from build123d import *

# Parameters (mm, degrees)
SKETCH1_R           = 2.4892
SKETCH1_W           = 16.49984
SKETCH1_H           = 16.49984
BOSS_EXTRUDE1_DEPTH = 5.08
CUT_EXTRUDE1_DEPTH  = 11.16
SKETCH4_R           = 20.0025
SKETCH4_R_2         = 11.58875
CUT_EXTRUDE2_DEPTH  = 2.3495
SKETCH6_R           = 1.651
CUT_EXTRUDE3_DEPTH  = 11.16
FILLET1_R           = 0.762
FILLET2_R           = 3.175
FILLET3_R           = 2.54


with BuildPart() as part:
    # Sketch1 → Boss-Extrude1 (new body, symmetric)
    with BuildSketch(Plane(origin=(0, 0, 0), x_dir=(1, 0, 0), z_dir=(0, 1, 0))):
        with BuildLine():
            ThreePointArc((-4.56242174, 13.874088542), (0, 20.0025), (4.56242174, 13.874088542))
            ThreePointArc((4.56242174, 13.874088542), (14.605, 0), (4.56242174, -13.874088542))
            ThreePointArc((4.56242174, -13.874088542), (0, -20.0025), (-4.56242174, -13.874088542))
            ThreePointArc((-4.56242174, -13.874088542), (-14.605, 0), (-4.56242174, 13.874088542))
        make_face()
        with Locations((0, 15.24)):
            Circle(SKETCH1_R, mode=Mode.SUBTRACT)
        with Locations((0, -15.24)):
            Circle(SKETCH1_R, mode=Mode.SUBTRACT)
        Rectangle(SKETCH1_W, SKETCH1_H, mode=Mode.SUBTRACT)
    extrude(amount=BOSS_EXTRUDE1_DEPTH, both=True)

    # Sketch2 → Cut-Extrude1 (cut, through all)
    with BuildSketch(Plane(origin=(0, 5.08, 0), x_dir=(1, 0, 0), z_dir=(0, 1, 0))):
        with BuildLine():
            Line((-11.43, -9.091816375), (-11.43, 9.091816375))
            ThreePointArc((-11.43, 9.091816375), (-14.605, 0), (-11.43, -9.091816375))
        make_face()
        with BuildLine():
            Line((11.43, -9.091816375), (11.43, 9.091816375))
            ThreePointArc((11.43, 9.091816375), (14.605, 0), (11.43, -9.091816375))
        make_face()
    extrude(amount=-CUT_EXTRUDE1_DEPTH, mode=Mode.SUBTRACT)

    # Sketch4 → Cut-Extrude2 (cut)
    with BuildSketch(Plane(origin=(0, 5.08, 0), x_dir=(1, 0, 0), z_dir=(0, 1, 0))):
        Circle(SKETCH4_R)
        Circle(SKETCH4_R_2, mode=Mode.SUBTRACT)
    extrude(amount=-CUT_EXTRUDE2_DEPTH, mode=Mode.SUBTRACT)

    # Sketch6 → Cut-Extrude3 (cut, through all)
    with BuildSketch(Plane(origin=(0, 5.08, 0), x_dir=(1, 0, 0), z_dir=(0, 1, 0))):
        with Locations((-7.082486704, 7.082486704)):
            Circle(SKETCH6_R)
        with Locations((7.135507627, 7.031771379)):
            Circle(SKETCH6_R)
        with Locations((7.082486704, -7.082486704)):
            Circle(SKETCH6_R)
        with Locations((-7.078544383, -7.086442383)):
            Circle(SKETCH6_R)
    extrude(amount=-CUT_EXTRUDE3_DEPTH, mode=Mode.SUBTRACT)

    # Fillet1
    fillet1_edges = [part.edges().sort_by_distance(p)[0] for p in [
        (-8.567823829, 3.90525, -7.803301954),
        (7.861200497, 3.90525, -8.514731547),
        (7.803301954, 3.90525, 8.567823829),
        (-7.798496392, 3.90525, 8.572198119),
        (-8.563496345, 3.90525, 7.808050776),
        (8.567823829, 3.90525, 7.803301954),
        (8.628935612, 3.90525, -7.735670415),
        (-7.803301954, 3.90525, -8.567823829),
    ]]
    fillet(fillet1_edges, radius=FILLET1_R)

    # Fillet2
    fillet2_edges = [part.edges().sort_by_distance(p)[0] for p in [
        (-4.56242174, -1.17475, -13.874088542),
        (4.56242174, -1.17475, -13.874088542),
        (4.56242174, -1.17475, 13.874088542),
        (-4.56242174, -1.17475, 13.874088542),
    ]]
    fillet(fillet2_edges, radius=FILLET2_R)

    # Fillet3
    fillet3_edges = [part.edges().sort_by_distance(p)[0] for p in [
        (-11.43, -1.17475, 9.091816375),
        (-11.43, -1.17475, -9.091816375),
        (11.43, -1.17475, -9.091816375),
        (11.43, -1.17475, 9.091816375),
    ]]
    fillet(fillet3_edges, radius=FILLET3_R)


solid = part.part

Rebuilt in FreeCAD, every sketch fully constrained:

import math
import FreeCAD as App
import Part
import Sketcher

V = App.Vector
Q = App.Units.Quantity


def edges_at(feature, points):
    """Names of the edges that pass closest to the given points."""
    edges = feature.Shape.Edges
    near = lambda p: min(range(len(edges)), key=lambda i: edges[i].distToShape(Part.Vertex(*p))[0])
    return sorted({f"Edge{near(p) + 1}" for p in points})

doc = App.newDocument("Part")
body = doc.addObject("PartDesign::Body", "Body")

# Sketch on XZ plane
sketch1 = body.newObject("Sketcher::SketchObject", "Sketch")
sketch1.AttachmentSupport = (doc.getObject("XZ_Plane"), [""])
sketch1.MapMode = "FlatFace"
sketch1.addGeometry([
    Part.ArcOfCircle(Part.Circle(V(0, -15.2, 0), V(0, 0, 1), 4.8), math.radians(163), math.radians(377)),  # 0
    Part.ArcOfCircle(Part.Circle(V(0, 0, 0), V(0, 0, 1), 14.6), math.radians(108), math.radians(252)),  # 1
    Part.ArcOfCircle(Part.Circle(V(0, 15.2, 0), V(0, 0, 1), 4.8), math.radians(-17), math.radians(197)),  # 2
    Part.ArcOfCircle(Part.Circle(V(0, 0, 0), V(0, 0, 1), 14.6), math.radians(-72), math.radians(72)),  # 3
    Part.Circle(V(0, 15.2, 0), V(0, 0, 1), 2.5),  # 4
    Part.LineSegment(V(-8.2, 8.2, 0), V(-8.2, -8.2, 0)),  # 5
    Part.LineSegment(V(-8.2, -8.2, 0), V(8.2, -8.2, 0)),  # 6
    Part.LineSegment(V(8.2, -8.2, 0), V(8.2, 8.2, 0)),  # 7
    Part.LineSegment(V(8.2, 8.2, 0), V(-8.2, 8.2, 0)),  # 8
    Part.Circle(V(0, -15.2, 0), V(0, 0, 1), 2.5),  # 9
], False)
sketch1.addConstraint([
    Sketcher.Constraint("Coincident", 0, 1, 1, 2),
    Sketcher.Constraint("Coincident", 1, 1, 2, 2),
    Sketcher.Constraint("Coincident", 2, 1, 3, 2),
    Sketcher.Constraint("Coincident", 3, 1, 0, 2),
    Sketcher.Constraint("Coincident", 5, 2, 6, 1),
    Sketcher.Constraint("Coincident", 6, 2, 7, 1),
    Sketcher.Constraint("Coincident", 7, 2, 8, 1),
    Sketcher.Constraint("Coincident", 8, 2, 5, 1),
    Sketcher.Constraint("Vertical", 5),
    Sketcher.Constraint("Horizontal", 6),
    Sketcher.Constraint("Vertical", 7),
    Sketcher.Constraint("Horizontal", 8),
    Sketcher.Constraint("Coincident", 1, 3, -1, 1),
    Sketcher.Constraint("Coincident", 3, 3, -1, 1),
    Sketcher.Constraint("Coincident", 4, 3, 2, 3),
    Sketcher.Constraint("Coincident", 9, 3, 0, 3),
    Sketcher.Constraint("Equal", 0, 2),
    Sketcher.Constraint("Equal", 1, 3),
    Sketcher.Constraint("Equal", 4, 9),
    Sketcher.Constraint("Symmetric", 0, 3, 2, 3, -1, 1),
    Sketcher.Constraint("Symmetric", 5, 2, 7, 2, -1, 1),
    Sketcher.Constraint("PointOnObject", 0, 3, -2),
    Sketcher.Constraint("Equal", 8, 5),
    Sketcher.Constraint("Diameter", 4, Q("0.196 in")),
    Sketcher.Constraint("Radius", 0, Q("0.1875 in")),
    Sketcher.Constraint("Radius", 1, Q("0.575 in")),
    Sketcher.Constraint("DistanceY", 0, 3, -1, 1, Q("0.6 in")),
    Sketcher.Constraint("DistanceX", 6, 1, 6, 2, Q("0.6496 in")),
])
pad1 = body.newObject("PartDesign::Pad", "Pad")
pad1.Profile = sketch1
pad1.Length = Q("0.4 in")
pad1.Midplane = True

# Sketch on XZ plane
sketch2 = body.newObject("Sketcher::SketchObject", "Sketch001")
sketch2.AttachmentSupport = (doc.getObject("XZ_Plane"), [""])
sketch2.MapMode = "FlatFace"
sketch2.AttachmentOffset = App.Placement(V(0, 0, -0.2 * 25.4), App.Rotation())
sketch2.addGeometry([
    Part.LineSegment(V(-11, 9, 0), V(-11, -9, 0)),
    Part.ArcOfCircle(Part.Circle(V(0, 0, 0), V(0, 0, 1), 15), math.radians(142), math.radians(218)),
    Part.LineSegment(V(11, -9, 0), V(11, 9, 0)),
    Part.ArcOfCircle(Part.Circle(V(0, 0, 0), V(0, 0, 1), 15), math.radians(-38), math.radians(38)),
], False)
sketch2.addConstraint([
    Sketcher.Constraint("Coincident", 0, 1, 1, 1),
    Sketcher.Constraint("Coincident", 1, 2, 0, 2),
    Sketcher.Constraint("Coincident", 2, 1, 3, 1),
    Sketcher.Constraint("Coincident", 3, 2, 2, 2),
    Sketcher.Constraint("Vertical", 0),
    Sketcher.Constraint("Vertical", 2),
    Sketcher.Constraint("Coincident", 1, 3, -1, 1),
    Sketcher.Constraint("Coincident", 3, 3, -1, 1),
    Sketcher.Constraint("Equal", 1, 3),
    Sketcher.Constraint("Horizontal", 1, 2, 2, 1),
    Sketcher.Constraint("Radius", 1, Q("0.575 in")),
    Sketcher.Constraint("DistanceX", 1, 2, 2, 1, Q("0.9 in")),
])
pocket1 = body.newObject("PartDesign::Pocket", "Pocket")
pocket1.Profile = sketch2
pocket1.Type = "ThroughAll"
pocket1.Reversed = True

# Sketch on XZ plane
sketch3 = body.newObject("Sketcher::SketchObject", "Sketch002")
sketch3.AttachmentSupport = (doc.getObject("XZ_Plane"), [""])
sketch3.MapMode = "FlatFace"
sketch3.AttachmentOffset = App.Placement(V(0, 0, -0.2 * 25.4), App.Rotation())
sketch3.addGeometry([
    Part.Circle(V(0, 0, 0), V(0, 0, 1), 20),
    Part.Circle(V(0, 0, 0), V(0, 0, 1), 12),
], False)
sketch3.addConstraint([
    Sketcher.Constraint("Coincident", 0, 3, -1, 1),
    Sketcher.Constraint("Coincident", 1, 3, -1, 1),
    Sketcher.Constraint("Diameter", 0, Q("1.575 in")),
    Sketcher.Constraint("Diameter", 1, Q("0.9125 in")),
])
pocket2 = body.newObject("PartDesign::Pocket", "Pocket001")
pocket2.Profile = sketch3
pocket2.Length = Q("0.0925 in")
pocket2.Reversed = True

# Sketch on XZ plane
sketch4 = body.newObject("Sketcher::SketchObject", "Sketch003")
sketch4.AttachmentSupport = (doc.getObject("XZ_Plane"), [""])
sketch4.MapMode = "FlatFace"
sketch4.AttachmentOffset = App.Placement(V(0, 0, -0.2 * 25.4), App.Rotation())
sketch4.addGeometry([
    Part.Circle(V(-7.1, -7.1, 0), V(0, 0, 1), 1.7),
    Part.Circle(V(7.1, -7, 0), V(0, 0, 1), 1.7),
    Part.Circle(V(7.1, 7.1, 0), V(0, 0, 1), 1.7),
    Part.Circle(V(-7.1, 7.1, 0), V(0, 0, 1), 1.7),
], False)
sketch4.addConstraint([
    Sketcher.Constraint("Equal", 0, 1),
    Sketcher.Constraint("Equal", 1, 2),
    Sketcher.Constraint("Equal", 2, 3),
    Sketcher.Constraint("Symmetric", 0, 3, 2, 3, -1, 1),
    Sketcher.Constraint("Diameter", 0, Q("0.13 in")),
    Sketcher.Constraint("DistanceY", 1, 3, -1, 1, Q("7.031771 mm")),
    Sketcher.Constraint("DistanceX", 2, 3, 1, 3, Q("0.053021 mm")),
    Sketcher.Constraint("DistanceY", 1, 3, 2, 3, Q("14.114258 mm")),
    Sketcher.Constraint("DistanceX", 3, 3, 2, 3, Q("14.161031 mm")),
    Sketcher.Constraint("DistanceY", 0, 3, 3, 3, Q("14.168929 mm")),
    Sketcher.Constraint("DistanceX", 0, 3, -1, 1, Q("7.082487 mm")),
])
pocket3 = body.newObject("PartDesign::Pocket", "Pocket002")
pocket3.Profile = sketch4
pocket3.Type = "ThroughAll"
pocket3.Reversed = True
doc.recompute()

fillet = body.newObject("PartDesign::Fillet", "Fillet")
fillet.Base = (pocket3, edges_at(pocket3, [
    (-8.568, 3.905, -7.803),
    (7.861, 3.905, -8.515),
    (7.803, 3.905, 8.568),
    (-7.798, 3.905, 8.572),
    (-8.563, 3.905, 7.808),
    (8.568, 3.905, 7.803),
    (8.629, 3.905, -7.736),
    (-7.803, 3.905, -8.568),
]))
fillet.Radius = Q("0.03 in")
doc.recompute()

fillet2 = body.newObject("PartDesign::Fillet", "Fillet001")
fillet2.Base = (fillet, edges_at(fillet, [
    (-4.562, -1.175, -13.874),
    (4.562, -1.175, -13.874),
    (4.562, -1.175, 13.874),
    (-4.562, -1.175, 13.874),
]))
fillet2.Radius = Q("0.125 in")
doc.recompute()

fillet3 = body.newObject("PartDesign::Fillet", "Fillet002")
fillet3.Base = (fillet2, edges_at(fillet2, [
    (-11.43, -1.175, 9.092),
    (-11.43, -1.175, -9.092),
    (11.43, -1.175, -9.092),
    (11.43, -1.175, 9.092),
]))
fillet3.Radius = Q("0.1 in")

doc.recompute()
